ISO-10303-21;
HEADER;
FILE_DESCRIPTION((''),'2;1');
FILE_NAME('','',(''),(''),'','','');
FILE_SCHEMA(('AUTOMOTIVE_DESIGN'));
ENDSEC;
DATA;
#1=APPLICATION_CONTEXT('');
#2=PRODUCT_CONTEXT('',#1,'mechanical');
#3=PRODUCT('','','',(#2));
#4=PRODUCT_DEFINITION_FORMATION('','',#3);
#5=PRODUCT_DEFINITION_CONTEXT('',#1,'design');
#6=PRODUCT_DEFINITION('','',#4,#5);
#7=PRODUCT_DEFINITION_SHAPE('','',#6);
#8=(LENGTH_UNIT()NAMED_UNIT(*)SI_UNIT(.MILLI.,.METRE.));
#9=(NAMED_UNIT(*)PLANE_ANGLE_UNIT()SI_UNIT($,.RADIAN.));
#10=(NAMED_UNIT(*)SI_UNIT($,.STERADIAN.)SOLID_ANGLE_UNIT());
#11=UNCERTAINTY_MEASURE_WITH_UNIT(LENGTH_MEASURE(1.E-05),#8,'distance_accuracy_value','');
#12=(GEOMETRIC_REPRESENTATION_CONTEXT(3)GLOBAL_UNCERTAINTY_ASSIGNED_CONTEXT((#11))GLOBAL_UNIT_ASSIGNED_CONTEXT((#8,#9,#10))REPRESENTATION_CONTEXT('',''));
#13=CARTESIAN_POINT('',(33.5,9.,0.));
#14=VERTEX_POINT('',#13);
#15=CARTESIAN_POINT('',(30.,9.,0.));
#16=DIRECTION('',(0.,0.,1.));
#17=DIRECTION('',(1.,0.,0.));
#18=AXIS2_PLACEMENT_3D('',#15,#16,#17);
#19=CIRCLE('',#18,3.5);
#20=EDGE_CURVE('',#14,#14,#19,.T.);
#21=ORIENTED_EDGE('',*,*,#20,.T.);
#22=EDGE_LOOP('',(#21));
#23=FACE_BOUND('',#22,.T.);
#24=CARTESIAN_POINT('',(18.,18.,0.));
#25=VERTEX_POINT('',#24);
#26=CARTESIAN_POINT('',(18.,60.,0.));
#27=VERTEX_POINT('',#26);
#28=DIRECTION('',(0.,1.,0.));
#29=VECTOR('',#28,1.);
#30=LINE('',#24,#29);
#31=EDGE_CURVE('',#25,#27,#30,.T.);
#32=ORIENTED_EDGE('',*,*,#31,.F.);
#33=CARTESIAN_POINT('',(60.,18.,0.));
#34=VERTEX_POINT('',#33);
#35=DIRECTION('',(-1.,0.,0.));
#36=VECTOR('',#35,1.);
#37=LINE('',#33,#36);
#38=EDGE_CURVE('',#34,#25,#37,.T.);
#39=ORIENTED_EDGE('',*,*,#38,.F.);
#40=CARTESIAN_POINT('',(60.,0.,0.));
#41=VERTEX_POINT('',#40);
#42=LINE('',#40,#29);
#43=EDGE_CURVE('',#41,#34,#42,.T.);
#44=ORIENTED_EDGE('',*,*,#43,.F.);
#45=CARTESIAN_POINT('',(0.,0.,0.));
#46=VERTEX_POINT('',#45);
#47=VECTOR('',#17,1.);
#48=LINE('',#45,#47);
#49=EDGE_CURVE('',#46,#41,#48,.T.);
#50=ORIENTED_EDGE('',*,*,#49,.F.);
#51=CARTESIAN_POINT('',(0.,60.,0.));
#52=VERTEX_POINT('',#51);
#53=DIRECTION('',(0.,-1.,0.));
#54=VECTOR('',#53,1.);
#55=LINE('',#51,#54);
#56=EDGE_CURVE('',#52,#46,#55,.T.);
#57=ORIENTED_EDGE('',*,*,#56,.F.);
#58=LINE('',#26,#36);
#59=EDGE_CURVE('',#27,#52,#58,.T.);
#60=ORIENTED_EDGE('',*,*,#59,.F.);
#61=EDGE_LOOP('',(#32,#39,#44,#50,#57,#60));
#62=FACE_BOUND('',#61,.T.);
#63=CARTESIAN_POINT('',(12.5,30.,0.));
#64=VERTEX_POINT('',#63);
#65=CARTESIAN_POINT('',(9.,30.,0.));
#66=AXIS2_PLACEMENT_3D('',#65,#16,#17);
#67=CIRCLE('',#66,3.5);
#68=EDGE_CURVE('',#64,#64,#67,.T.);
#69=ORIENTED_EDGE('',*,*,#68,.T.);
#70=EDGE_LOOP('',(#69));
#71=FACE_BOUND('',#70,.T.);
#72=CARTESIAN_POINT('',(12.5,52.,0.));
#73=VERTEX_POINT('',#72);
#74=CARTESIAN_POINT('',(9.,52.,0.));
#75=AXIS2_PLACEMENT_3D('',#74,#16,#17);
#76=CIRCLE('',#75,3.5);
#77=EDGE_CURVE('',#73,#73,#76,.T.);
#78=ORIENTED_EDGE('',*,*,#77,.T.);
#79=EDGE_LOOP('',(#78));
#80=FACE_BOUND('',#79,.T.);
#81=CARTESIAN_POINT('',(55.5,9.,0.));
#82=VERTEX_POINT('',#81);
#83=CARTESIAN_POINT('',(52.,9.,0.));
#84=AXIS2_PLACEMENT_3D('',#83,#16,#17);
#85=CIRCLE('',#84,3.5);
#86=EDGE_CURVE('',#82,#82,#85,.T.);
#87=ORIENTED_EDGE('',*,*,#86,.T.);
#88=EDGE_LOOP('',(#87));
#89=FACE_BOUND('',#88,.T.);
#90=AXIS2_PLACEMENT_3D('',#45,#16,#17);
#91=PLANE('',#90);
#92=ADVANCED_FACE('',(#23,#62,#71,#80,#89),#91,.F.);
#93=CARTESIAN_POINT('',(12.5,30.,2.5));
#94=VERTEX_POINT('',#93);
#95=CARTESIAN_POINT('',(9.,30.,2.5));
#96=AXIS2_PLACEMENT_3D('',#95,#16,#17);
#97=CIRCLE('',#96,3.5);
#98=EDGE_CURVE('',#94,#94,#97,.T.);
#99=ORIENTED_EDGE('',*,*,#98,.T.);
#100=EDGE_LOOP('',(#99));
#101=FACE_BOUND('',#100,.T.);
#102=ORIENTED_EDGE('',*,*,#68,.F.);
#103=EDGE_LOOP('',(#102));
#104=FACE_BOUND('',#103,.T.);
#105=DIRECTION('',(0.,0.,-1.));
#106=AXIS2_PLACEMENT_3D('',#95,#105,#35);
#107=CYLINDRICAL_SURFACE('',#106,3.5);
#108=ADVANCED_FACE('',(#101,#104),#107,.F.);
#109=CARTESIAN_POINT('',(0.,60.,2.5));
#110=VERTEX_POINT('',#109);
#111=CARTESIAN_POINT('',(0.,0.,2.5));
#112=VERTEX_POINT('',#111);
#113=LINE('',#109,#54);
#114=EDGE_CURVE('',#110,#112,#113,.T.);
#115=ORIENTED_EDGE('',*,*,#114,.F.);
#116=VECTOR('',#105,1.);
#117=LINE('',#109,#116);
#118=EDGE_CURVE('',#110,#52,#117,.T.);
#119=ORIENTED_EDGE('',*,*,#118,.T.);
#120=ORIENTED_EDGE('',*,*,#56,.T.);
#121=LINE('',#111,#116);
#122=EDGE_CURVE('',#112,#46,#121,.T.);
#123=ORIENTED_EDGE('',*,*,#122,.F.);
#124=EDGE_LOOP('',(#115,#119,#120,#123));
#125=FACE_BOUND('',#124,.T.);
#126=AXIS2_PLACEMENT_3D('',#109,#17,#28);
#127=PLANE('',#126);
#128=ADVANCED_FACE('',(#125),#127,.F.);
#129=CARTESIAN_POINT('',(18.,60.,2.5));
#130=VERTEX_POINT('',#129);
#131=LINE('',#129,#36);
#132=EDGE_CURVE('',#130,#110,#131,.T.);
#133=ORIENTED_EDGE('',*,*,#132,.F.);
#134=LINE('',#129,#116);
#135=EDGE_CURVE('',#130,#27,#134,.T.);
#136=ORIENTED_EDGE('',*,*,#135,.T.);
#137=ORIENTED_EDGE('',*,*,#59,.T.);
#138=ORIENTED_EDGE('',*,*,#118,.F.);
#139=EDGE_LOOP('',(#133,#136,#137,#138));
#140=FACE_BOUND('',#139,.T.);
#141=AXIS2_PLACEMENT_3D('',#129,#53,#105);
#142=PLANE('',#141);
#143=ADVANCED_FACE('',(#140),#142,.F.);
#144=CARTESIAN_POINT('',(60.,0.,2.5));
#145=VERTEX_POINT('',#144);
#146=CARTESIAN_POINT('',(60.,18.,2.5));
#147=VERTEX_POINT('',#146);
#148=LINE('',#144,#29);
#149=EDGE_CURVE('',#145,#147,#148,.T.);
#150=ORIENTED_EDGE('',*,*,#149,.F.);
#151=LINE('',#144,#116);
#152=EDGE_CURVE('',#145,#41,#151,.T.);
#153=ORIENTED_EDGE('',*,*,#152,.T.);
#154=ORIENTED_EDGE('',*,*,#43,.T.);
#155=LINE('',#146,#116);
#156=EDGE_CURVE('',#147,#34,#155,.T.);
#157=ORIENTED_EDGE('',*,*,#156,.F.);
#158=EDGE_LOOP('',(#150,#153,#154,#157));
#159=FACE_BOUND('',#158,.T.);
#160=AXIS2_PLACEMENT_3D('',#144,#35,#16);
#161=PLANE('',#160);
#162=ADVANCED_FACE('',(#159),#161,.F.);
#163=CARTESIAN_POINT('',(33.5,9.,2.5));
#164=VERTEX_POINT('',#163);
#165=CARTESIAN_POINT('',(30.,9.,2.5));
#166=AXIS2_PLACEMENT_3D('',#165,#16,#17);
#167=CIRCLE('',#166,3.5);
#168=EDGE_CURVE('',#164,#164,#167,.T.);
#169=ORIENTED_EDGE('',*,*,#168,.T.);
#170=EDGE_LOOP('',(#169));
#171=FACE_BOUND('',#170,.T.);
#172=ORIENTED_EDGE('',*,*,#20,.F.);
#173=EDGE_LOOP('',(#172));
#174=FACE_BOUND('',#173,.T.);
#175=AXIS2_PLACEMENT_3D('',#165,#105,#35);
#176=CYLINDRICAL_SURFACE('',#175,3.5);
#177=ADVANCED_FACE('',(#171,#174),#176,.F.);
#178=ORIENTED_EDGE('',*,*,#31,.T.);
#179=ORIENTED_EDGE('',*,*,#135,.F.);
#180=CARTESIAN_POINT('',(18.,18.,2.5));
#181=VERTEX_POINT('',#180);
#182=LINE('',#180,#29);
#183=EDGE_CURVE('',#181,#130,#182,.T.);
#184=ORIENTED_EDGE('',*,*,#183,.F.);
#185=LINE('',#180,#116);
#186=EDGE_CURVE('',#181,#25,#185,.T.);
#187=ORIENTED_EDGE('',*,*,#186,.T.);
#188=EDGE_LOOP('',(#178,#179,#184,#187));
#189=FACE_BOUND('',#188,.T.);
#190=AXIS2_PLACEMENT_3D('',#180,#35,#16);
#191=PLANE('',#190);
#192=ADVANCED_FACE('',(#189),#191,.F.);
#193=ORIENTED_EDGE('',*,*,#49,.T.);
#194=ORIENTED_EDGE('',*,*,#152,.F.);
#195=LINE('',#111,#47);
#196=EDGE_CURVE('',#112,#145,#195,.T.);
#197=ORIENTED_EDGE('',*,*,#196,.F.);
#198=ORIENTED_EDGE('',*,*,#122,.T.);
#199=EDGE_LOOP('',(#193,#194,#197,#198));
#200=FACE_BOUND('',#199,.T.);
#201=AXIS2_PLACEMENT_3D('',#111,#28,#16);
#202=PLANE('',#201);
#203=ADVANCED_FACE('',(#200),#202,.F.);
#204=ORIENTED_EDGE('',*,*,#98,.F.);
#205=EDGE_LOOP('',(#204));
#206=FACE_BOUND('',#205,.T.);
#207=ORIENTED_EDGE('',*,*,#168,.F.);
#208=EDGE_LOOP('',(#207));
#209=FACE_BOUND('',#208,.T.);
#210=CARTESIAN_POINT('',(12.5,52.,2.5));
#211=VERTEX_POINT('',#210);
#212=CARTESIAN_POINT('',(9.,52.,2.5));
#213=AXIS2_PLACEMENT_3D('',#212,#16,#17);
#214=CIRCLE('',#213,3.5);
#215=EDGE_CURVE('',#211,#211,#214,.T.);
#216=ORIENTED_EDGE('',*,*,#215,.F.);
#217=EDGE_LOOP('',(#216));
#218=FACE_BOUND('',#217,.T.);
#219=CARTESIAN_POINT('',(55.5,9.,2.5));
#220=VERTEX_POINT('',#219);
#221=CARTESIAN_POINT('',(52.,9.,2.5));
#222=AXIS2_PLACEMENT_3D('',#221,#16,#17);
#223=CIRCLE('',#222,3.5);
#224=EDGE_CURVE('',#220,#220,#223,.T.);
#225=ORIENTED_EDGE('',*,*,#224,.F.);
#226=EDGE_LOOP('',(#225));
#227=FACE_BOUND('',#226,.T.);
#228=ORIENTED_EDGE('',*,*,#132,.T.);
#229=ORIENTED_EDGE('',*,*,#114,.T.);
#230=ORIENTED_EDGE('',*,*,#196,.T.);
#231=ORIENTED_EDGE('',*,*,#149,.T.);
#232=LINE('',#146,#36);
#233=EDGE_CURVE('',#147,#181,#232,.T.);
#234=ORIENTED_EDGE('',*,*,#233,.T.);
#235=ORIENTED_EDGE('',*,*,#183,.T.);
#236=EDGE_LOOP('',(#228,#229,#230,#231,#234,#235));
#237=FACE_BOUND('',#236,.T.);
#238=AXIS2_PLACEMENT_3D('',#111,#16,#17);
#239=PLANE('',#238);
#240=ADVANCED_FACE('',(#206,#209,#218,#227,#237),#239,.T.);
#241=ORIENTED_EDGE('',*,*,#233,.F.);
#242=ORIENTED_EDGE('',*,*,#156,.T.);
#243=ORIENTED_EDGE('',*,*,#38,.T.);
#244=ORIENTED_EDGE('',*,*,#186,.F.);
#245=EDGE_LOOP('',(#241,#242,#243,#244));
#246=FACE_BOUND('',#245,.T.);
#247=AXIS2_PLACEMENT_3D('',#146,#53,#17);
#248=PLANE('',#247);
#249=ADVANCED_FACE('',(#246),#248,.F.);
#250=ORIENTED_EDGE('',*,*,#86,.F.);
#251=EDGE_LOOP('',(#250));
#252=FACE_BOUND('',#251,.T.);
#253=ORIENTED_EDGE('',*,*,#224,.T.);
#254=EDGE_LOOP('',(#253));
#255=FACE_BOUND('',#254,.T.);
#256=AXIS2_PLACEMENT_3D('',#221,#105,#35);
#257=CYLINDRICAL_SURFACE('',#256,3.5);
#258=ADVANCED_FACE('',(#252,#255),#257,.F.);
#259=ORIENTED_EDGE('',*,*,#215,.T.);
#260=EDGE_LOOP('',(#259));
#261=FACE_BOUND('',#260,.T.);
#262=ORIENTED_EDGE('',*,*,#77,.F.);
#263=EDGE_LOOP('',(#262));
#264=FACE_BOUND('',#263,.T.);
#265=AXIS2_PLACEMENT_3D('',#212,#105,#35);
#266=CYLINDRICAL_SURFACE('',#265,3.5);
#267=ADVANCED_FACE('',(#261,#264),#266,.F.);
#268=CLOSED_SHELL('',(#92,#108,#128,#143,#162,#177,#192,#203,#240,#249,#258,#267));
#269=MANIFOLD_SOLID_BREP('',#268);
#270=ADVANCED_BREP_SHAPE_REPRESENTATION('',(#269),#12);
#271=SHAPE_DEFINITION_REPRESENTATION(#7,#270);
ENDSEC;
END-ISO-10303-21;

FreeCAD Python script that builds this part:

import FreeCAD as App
import Part
import Sketcher

doc = App.newDocument("Part")
params = doc.addObject("Spreadsheet::Sheet", "Params")
for row, (alias, value) in enumerate([
    ("sketch1_diameter", "7 mm"),
    ("sketch1_width", "60 mm"),
    ("sketch1_width2", "42 mm"),
    ("pad1_length", "2.5 mm"),
], start=1):
    params.set(f"A{row}", alias)
    params.set(f"B{row}", "=" + value)
    params.setAlias(f"B{row}", alias)

body = doc.addObject("PartDesign::Body", "Body")

# Sketch on XY plane
sketch1 = body.newObject("Sketcher::SketchObject", "Sketch")
sketch1.AttachmentSupport = (doc.getObject("XY_Plane"), [""])
sketch1.MapMode = "FlatFace"
sketch1.addGeometry(Part.LineSegment(App.Vector(0, 60, 0), App.Vector(0, 0, 0)), False)
sketch1.addGeometry(Part.LineSegment(App.Vector(0, 0, 0), App.Vector(60, 0, 0)), False)
sketch1.addGeometry(Part.LineSegment(App.Vector(60, 0, 0), App.Vector(60, 18, 0)), False)
sketch1.addGeometry(Part.LineSegment(App.Vector(60, 18, 0), App.Vector(18, 18, 0)), False)
sketch1.addGeometry(Part.LineSegment(App.Vector(18, 18, 0), App.Vector(18, 60, 0)), False)
sketch1.addGeometry(Part.LineSegment(App.Vector(18, 60, 0), App.Vector(0, 60, 0)), False)
sketch1.addGeometry(Part.Circle(App.Vector(30, 9, 0), App.Vector(0, 0, 1), 3.5), False)
sketch1.addGeometry(Part.Circle(App.Vector(9, 30, 0), App.Vector(0, 0, 1), 3.5), False)
sketch1.addGeometry(Part.Circle(App.Vector(52, 9, 0), App.Vector(0, 0, 1), 3.5), False)
sketch1.addGeometry(Part.Circle(App.Vector(9, 52, 0), App.Vector(0, 0, 1), 3.5), False)
sketch1.addConstraint(Sketcher.Constraint("Coincident", 0, 2, 1, 1))
sketch1.addConstraint(Sketcher.Constraint("Coincident", 1, 2, 2, 1))
sketch1.addConstraint(Sketcher.Constraint("Coincident", 2, 2, 3, 1))
sketch1.addConstraint(Sketcher.Constraint("Coincident", 3, 2, 4, 1))
sketch1.addConstraint(Sketcher.Constraint("Coincident", 4, 2, 5, 1))
sketch1.addConstraint(Sketcher.Constraint("Coincident", 5, 2, 0, 1))
sketch1.addConstraint(Sketcher.Constraint("Vertical", 0))
sketch1.addConstraint(Sketcher.Constraint("Horizontal", 1))
sketch1.addConstraint(Sketcher.Constraint("Vertical", 2))
sketch1.addConstraint(Sketcher.Constraint("Horizontal", 3))
sketch1.addConstraint(Sketcher.Constraint("Vertical", 4))
sketch1.addConstraint(Sketcher.Constraint("Horizontal", 5))
sketch1.addConstraint(Sketcher.Constraint("Coincident", 0, 2, -1, 1))
sketch1.addConstraint(Sketcher.Constraint("Equal", 6, 7))
sketch1.addConstraint(Sketcher.Constraint("Equal", 7, 8))
sketch1.addConstraint(Sketcher.Constraint("Equal", 8, 9))
sketch1.addConstraint(Sketcher.Constraint("Horizontal", 6, 3, 8, 3))
sketch1.addConstraint(Sketcher.Constraint("Vertical", 7, 3, 9, 3))
sketch1.addConstraint(Sketcher.Constraint("Equal", 1, 0))
sketch1.addConstraint(Sketcher.Constraint("Equal", 5, 2))
sketch1.addConstraint(Sketcher.Constraint("Diameter", 6, 7.0))
sketch1.addConstraint(Sketcher.Constraint("DistanceX", 1, 1, 1, 2, 60.0))
sketch1.addConstraint(Sketcher.Constraint("DistanceX", 3, 2, 3, 1, 42.0))
sketch1.addConstraint(Sketcher.Constraint("DistanceX", -1, 1, 6, 3, 30.0))
sketch1.addConstraint(Sketcher.Constraint("DistanceY", -1, 1, 6, 3, 9.0))
sketch1.addConstraint(Sketcher.Constraint("DistanceX", -1, 1, 7, 3, 9.0))
sketch1.addConstraint(Sketcher.Constraint("DistanceY", -1, 1, 7, 3, 30.0))
sketch1.addConstraint(Sketcher.Constraint("DistanceX", -1, 1, 8, 3, 52.0))
sketch1.addConstraint(Sketcher.Constraint("DistanceY", -1, 1, 9, 3, 52.0))
sketch1.setExpression("Constraints[20]", "Params.sketch1_diameter")
sketch1.setExpression("Constraints[21]", "Params.sketch1_width")
sketch1.setExpression("Constraints[22]", "Params.sketch1_width2")
pad1 = body.newObject("PartDesign::Pad", "Pad")
pad1.Profile = sketch1
pad1.setExpression("Length", "Params.pad1_length")

doc.recompute()
